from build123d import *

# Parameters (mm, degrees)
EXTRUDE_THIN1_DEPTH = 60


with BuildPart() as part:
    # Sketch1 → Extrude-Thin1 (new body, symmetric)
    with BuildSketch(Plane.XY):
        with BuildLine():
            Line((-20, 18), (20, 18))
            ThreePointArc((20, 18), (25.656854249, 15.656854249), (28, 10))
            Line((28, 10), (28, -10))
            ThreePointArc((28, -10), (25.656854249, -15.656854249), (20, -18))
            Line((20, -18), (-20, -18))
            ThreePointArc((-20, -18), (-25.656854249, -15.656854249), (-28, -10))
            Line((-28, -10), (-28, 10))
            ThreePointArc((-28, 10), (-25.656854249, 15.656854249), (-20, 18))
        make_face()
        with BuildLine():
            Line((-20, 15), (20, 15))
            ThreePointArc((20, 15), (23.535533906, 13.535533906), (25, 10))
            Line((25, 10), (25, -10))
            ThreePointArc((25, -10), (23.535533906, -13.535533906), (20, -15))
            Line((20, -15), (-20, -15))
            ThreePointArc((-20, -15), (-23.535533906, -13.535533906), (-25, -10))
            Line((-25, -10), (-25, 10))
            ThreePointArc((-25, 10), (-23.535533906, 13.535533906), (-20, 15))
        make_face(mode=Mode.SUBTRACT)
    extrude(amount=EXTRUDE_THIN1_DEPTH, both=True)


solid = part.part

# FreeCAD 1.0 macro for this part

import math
import FreeCAD as App
import Part
import Sketcher
from FreeCAD import Vector
Q = App.Units.Quantity

doc = App.newDocument("Part")
body = doc.addObject("PartDesign::Body", "Body")

sketch1 = body.newObject("Sketcher::SketchObject", "Sketch")
sketch1.AttachmentSupport = (doc.getObject("XY_Plane"), [""])
sketch1.MapMode = "FlatFace"
sketch1.addGeometry([
    Part.LineSegment(Vector(20, 18, 0), Vector(-20, 18, 0)),
    Part.ArcOfCircle(Part.Circle(Vector(-20, 10, 0), Vector(0, 0, 1), 8), math.radians(90), math.radians(180)),
    Part.LineSegment(Vector(-28, 10, 0), Vector(-28, -10, 0)),
    Part.ArcOfCircle(Part.Circle(Vector(-20, -10, 0), Vector(0, 0, 1), 8), math.radians(-180), math.radians(-90)),
    Part.LineSegment(Vector(-20, -18, 0), Vector(20, -18, 0)),
    Part.ArcOfCircle(Part.Circle(Vector(20, -10, 0), Vector(0, 0, 1), 8), math.radians(-90), math.radians(0)),
    Part.LineSegment(Vector(28, -10, 0), Vector(28, 10, 0)),
    Part.ArcOfCircle(Part.Circle(Vector(20, 10, 0), Vector(0, 0, 1), 8), math.radians(0), math.radians(90)),
    Part.LineSegment(Vector(-20, 15, 0), Vector(20, 15, 0)),
    Part.ArcOfCircle(Part.Circle(Vector(20, 10, 0), Vector(0, 0, 1), 5), math.radians(0), math.radians(90)),
    Part.LineSegment(Vector(25, 10, 0), Vector(25, -10, 0)),
    Part.ArcOfCircle(Part.Circle(Vector(20, -10, 0), Vector(0, 0, 1), 5), math.radians(-90), math.radians(0)),
    Part.LineSegment(Vector(20, -15, 0), Vector(-20, -15, 0)),
    Part.ArcOfCircle(Part.Circle(Vector(-20, -10, 0), Vector(0, 0, 1), 5), math.radians(180), math.radians(270)),
    Part.LineSegment(Vector(-25, -10, 0), Vector(-25, 10, 0)),
    Part.ArcOfCircle(Part.Circle(Vector(-20, 10, 0), Vector(0, 0, 1), 5), math.radians(90), math.radians(180)),
], False)
sketch1.addConstraint([
    Sketcher.Constraint("Tangent", 0, 2, 1, 1),
    Sketcher.Constraint("Tangent", 1, 2, 2, 1),
    Sketcher.Constraint("Tangent", 2, 2, 3, 1),
    Sketcher.Constraint("Tangent", 3, 2, 4, 1),
    Sketcher.Constraint("Tangent", 4, 2, 5, 1),
    Sketcher.Constraint("Tangent", 5, 2, 6, 1),
    Sketcher.Constraint("Tangent", 6, 2, 7, 1),
    Sketcher.Constraint("Tangent", 7, 2, 0, 1),
    Sketcher.Constraint("Tangent", 8, 2, 9, 2),
    Sketcher.Constraint("Tangent", 9, 1, 10, 1),
    Sketcher.Constraint("Tangent", 10, 2, 11, 2),
    Sketcher.Constraint("Tangent", 11, 1, 12, 1),
    Sketcher.Constraint("Tangent", 12, 2, 13, 2),
    Sketcher.Constraint("Tangent", 13, 1, 14, 1),
    Sketcher.Constraint("Tangent", 14, 2, 15, 2),
    Sketcher.Constraint("Tangent", 15, 1, 8, 1),
    Sketcher.Constraint("Horizontal", 0),
    Sketcher.Constraint("Vertical", 2),
    Sketcher.Constraint("Horizontal", 4),
    Sketcher.Constraint("Vertical", 6),
    Sketcher.Constraint("Horizontal", 8),
    Sketcher.Constraint("Vertical", 10),
    Sketcher.Constraint("Horizontal", 12),
    Sketcher.Constraint("Vertical", 14),
    Sketcher.Constraint("Coincident", 9, 3, 7, 3),
    Sketcher.Constraint("Coincident", 11, 3, 5, 3),
    Sketcher.Constraint("Coincident", 13, 3, 3, 3),
    Sketcher.Constraint("Equal", 1, 3),
    Sketcher.Constraint("Equal", 3, 5),
    Sketcher.Constraint("Equal", 5, 7),
    Sketcher.Constraint("Equal", 13, 15),
    Sketcher.Constraint("Symmetric", 1, 3, 5, 3, -1, 1),
    Sketcher.Constraint("Radius", 1, Q("8 mm")),
    Sketcher.Constraint("Radius", 9, Q("5 mm")),
    Sketcher.Constraint("DistanceX", 0, 2, 0, 1, Q("40 mm")),
    Sketcher.Constraint("DistanceY", 2, 2, 2, 1, Q("20 mm")),
])
pad1 = body.newObject("PartDesign::Pad", "Pad")
pad1.Profile = sketch1
pad1.Length = 120
pad1.Midplane = True

doc.recompute()
